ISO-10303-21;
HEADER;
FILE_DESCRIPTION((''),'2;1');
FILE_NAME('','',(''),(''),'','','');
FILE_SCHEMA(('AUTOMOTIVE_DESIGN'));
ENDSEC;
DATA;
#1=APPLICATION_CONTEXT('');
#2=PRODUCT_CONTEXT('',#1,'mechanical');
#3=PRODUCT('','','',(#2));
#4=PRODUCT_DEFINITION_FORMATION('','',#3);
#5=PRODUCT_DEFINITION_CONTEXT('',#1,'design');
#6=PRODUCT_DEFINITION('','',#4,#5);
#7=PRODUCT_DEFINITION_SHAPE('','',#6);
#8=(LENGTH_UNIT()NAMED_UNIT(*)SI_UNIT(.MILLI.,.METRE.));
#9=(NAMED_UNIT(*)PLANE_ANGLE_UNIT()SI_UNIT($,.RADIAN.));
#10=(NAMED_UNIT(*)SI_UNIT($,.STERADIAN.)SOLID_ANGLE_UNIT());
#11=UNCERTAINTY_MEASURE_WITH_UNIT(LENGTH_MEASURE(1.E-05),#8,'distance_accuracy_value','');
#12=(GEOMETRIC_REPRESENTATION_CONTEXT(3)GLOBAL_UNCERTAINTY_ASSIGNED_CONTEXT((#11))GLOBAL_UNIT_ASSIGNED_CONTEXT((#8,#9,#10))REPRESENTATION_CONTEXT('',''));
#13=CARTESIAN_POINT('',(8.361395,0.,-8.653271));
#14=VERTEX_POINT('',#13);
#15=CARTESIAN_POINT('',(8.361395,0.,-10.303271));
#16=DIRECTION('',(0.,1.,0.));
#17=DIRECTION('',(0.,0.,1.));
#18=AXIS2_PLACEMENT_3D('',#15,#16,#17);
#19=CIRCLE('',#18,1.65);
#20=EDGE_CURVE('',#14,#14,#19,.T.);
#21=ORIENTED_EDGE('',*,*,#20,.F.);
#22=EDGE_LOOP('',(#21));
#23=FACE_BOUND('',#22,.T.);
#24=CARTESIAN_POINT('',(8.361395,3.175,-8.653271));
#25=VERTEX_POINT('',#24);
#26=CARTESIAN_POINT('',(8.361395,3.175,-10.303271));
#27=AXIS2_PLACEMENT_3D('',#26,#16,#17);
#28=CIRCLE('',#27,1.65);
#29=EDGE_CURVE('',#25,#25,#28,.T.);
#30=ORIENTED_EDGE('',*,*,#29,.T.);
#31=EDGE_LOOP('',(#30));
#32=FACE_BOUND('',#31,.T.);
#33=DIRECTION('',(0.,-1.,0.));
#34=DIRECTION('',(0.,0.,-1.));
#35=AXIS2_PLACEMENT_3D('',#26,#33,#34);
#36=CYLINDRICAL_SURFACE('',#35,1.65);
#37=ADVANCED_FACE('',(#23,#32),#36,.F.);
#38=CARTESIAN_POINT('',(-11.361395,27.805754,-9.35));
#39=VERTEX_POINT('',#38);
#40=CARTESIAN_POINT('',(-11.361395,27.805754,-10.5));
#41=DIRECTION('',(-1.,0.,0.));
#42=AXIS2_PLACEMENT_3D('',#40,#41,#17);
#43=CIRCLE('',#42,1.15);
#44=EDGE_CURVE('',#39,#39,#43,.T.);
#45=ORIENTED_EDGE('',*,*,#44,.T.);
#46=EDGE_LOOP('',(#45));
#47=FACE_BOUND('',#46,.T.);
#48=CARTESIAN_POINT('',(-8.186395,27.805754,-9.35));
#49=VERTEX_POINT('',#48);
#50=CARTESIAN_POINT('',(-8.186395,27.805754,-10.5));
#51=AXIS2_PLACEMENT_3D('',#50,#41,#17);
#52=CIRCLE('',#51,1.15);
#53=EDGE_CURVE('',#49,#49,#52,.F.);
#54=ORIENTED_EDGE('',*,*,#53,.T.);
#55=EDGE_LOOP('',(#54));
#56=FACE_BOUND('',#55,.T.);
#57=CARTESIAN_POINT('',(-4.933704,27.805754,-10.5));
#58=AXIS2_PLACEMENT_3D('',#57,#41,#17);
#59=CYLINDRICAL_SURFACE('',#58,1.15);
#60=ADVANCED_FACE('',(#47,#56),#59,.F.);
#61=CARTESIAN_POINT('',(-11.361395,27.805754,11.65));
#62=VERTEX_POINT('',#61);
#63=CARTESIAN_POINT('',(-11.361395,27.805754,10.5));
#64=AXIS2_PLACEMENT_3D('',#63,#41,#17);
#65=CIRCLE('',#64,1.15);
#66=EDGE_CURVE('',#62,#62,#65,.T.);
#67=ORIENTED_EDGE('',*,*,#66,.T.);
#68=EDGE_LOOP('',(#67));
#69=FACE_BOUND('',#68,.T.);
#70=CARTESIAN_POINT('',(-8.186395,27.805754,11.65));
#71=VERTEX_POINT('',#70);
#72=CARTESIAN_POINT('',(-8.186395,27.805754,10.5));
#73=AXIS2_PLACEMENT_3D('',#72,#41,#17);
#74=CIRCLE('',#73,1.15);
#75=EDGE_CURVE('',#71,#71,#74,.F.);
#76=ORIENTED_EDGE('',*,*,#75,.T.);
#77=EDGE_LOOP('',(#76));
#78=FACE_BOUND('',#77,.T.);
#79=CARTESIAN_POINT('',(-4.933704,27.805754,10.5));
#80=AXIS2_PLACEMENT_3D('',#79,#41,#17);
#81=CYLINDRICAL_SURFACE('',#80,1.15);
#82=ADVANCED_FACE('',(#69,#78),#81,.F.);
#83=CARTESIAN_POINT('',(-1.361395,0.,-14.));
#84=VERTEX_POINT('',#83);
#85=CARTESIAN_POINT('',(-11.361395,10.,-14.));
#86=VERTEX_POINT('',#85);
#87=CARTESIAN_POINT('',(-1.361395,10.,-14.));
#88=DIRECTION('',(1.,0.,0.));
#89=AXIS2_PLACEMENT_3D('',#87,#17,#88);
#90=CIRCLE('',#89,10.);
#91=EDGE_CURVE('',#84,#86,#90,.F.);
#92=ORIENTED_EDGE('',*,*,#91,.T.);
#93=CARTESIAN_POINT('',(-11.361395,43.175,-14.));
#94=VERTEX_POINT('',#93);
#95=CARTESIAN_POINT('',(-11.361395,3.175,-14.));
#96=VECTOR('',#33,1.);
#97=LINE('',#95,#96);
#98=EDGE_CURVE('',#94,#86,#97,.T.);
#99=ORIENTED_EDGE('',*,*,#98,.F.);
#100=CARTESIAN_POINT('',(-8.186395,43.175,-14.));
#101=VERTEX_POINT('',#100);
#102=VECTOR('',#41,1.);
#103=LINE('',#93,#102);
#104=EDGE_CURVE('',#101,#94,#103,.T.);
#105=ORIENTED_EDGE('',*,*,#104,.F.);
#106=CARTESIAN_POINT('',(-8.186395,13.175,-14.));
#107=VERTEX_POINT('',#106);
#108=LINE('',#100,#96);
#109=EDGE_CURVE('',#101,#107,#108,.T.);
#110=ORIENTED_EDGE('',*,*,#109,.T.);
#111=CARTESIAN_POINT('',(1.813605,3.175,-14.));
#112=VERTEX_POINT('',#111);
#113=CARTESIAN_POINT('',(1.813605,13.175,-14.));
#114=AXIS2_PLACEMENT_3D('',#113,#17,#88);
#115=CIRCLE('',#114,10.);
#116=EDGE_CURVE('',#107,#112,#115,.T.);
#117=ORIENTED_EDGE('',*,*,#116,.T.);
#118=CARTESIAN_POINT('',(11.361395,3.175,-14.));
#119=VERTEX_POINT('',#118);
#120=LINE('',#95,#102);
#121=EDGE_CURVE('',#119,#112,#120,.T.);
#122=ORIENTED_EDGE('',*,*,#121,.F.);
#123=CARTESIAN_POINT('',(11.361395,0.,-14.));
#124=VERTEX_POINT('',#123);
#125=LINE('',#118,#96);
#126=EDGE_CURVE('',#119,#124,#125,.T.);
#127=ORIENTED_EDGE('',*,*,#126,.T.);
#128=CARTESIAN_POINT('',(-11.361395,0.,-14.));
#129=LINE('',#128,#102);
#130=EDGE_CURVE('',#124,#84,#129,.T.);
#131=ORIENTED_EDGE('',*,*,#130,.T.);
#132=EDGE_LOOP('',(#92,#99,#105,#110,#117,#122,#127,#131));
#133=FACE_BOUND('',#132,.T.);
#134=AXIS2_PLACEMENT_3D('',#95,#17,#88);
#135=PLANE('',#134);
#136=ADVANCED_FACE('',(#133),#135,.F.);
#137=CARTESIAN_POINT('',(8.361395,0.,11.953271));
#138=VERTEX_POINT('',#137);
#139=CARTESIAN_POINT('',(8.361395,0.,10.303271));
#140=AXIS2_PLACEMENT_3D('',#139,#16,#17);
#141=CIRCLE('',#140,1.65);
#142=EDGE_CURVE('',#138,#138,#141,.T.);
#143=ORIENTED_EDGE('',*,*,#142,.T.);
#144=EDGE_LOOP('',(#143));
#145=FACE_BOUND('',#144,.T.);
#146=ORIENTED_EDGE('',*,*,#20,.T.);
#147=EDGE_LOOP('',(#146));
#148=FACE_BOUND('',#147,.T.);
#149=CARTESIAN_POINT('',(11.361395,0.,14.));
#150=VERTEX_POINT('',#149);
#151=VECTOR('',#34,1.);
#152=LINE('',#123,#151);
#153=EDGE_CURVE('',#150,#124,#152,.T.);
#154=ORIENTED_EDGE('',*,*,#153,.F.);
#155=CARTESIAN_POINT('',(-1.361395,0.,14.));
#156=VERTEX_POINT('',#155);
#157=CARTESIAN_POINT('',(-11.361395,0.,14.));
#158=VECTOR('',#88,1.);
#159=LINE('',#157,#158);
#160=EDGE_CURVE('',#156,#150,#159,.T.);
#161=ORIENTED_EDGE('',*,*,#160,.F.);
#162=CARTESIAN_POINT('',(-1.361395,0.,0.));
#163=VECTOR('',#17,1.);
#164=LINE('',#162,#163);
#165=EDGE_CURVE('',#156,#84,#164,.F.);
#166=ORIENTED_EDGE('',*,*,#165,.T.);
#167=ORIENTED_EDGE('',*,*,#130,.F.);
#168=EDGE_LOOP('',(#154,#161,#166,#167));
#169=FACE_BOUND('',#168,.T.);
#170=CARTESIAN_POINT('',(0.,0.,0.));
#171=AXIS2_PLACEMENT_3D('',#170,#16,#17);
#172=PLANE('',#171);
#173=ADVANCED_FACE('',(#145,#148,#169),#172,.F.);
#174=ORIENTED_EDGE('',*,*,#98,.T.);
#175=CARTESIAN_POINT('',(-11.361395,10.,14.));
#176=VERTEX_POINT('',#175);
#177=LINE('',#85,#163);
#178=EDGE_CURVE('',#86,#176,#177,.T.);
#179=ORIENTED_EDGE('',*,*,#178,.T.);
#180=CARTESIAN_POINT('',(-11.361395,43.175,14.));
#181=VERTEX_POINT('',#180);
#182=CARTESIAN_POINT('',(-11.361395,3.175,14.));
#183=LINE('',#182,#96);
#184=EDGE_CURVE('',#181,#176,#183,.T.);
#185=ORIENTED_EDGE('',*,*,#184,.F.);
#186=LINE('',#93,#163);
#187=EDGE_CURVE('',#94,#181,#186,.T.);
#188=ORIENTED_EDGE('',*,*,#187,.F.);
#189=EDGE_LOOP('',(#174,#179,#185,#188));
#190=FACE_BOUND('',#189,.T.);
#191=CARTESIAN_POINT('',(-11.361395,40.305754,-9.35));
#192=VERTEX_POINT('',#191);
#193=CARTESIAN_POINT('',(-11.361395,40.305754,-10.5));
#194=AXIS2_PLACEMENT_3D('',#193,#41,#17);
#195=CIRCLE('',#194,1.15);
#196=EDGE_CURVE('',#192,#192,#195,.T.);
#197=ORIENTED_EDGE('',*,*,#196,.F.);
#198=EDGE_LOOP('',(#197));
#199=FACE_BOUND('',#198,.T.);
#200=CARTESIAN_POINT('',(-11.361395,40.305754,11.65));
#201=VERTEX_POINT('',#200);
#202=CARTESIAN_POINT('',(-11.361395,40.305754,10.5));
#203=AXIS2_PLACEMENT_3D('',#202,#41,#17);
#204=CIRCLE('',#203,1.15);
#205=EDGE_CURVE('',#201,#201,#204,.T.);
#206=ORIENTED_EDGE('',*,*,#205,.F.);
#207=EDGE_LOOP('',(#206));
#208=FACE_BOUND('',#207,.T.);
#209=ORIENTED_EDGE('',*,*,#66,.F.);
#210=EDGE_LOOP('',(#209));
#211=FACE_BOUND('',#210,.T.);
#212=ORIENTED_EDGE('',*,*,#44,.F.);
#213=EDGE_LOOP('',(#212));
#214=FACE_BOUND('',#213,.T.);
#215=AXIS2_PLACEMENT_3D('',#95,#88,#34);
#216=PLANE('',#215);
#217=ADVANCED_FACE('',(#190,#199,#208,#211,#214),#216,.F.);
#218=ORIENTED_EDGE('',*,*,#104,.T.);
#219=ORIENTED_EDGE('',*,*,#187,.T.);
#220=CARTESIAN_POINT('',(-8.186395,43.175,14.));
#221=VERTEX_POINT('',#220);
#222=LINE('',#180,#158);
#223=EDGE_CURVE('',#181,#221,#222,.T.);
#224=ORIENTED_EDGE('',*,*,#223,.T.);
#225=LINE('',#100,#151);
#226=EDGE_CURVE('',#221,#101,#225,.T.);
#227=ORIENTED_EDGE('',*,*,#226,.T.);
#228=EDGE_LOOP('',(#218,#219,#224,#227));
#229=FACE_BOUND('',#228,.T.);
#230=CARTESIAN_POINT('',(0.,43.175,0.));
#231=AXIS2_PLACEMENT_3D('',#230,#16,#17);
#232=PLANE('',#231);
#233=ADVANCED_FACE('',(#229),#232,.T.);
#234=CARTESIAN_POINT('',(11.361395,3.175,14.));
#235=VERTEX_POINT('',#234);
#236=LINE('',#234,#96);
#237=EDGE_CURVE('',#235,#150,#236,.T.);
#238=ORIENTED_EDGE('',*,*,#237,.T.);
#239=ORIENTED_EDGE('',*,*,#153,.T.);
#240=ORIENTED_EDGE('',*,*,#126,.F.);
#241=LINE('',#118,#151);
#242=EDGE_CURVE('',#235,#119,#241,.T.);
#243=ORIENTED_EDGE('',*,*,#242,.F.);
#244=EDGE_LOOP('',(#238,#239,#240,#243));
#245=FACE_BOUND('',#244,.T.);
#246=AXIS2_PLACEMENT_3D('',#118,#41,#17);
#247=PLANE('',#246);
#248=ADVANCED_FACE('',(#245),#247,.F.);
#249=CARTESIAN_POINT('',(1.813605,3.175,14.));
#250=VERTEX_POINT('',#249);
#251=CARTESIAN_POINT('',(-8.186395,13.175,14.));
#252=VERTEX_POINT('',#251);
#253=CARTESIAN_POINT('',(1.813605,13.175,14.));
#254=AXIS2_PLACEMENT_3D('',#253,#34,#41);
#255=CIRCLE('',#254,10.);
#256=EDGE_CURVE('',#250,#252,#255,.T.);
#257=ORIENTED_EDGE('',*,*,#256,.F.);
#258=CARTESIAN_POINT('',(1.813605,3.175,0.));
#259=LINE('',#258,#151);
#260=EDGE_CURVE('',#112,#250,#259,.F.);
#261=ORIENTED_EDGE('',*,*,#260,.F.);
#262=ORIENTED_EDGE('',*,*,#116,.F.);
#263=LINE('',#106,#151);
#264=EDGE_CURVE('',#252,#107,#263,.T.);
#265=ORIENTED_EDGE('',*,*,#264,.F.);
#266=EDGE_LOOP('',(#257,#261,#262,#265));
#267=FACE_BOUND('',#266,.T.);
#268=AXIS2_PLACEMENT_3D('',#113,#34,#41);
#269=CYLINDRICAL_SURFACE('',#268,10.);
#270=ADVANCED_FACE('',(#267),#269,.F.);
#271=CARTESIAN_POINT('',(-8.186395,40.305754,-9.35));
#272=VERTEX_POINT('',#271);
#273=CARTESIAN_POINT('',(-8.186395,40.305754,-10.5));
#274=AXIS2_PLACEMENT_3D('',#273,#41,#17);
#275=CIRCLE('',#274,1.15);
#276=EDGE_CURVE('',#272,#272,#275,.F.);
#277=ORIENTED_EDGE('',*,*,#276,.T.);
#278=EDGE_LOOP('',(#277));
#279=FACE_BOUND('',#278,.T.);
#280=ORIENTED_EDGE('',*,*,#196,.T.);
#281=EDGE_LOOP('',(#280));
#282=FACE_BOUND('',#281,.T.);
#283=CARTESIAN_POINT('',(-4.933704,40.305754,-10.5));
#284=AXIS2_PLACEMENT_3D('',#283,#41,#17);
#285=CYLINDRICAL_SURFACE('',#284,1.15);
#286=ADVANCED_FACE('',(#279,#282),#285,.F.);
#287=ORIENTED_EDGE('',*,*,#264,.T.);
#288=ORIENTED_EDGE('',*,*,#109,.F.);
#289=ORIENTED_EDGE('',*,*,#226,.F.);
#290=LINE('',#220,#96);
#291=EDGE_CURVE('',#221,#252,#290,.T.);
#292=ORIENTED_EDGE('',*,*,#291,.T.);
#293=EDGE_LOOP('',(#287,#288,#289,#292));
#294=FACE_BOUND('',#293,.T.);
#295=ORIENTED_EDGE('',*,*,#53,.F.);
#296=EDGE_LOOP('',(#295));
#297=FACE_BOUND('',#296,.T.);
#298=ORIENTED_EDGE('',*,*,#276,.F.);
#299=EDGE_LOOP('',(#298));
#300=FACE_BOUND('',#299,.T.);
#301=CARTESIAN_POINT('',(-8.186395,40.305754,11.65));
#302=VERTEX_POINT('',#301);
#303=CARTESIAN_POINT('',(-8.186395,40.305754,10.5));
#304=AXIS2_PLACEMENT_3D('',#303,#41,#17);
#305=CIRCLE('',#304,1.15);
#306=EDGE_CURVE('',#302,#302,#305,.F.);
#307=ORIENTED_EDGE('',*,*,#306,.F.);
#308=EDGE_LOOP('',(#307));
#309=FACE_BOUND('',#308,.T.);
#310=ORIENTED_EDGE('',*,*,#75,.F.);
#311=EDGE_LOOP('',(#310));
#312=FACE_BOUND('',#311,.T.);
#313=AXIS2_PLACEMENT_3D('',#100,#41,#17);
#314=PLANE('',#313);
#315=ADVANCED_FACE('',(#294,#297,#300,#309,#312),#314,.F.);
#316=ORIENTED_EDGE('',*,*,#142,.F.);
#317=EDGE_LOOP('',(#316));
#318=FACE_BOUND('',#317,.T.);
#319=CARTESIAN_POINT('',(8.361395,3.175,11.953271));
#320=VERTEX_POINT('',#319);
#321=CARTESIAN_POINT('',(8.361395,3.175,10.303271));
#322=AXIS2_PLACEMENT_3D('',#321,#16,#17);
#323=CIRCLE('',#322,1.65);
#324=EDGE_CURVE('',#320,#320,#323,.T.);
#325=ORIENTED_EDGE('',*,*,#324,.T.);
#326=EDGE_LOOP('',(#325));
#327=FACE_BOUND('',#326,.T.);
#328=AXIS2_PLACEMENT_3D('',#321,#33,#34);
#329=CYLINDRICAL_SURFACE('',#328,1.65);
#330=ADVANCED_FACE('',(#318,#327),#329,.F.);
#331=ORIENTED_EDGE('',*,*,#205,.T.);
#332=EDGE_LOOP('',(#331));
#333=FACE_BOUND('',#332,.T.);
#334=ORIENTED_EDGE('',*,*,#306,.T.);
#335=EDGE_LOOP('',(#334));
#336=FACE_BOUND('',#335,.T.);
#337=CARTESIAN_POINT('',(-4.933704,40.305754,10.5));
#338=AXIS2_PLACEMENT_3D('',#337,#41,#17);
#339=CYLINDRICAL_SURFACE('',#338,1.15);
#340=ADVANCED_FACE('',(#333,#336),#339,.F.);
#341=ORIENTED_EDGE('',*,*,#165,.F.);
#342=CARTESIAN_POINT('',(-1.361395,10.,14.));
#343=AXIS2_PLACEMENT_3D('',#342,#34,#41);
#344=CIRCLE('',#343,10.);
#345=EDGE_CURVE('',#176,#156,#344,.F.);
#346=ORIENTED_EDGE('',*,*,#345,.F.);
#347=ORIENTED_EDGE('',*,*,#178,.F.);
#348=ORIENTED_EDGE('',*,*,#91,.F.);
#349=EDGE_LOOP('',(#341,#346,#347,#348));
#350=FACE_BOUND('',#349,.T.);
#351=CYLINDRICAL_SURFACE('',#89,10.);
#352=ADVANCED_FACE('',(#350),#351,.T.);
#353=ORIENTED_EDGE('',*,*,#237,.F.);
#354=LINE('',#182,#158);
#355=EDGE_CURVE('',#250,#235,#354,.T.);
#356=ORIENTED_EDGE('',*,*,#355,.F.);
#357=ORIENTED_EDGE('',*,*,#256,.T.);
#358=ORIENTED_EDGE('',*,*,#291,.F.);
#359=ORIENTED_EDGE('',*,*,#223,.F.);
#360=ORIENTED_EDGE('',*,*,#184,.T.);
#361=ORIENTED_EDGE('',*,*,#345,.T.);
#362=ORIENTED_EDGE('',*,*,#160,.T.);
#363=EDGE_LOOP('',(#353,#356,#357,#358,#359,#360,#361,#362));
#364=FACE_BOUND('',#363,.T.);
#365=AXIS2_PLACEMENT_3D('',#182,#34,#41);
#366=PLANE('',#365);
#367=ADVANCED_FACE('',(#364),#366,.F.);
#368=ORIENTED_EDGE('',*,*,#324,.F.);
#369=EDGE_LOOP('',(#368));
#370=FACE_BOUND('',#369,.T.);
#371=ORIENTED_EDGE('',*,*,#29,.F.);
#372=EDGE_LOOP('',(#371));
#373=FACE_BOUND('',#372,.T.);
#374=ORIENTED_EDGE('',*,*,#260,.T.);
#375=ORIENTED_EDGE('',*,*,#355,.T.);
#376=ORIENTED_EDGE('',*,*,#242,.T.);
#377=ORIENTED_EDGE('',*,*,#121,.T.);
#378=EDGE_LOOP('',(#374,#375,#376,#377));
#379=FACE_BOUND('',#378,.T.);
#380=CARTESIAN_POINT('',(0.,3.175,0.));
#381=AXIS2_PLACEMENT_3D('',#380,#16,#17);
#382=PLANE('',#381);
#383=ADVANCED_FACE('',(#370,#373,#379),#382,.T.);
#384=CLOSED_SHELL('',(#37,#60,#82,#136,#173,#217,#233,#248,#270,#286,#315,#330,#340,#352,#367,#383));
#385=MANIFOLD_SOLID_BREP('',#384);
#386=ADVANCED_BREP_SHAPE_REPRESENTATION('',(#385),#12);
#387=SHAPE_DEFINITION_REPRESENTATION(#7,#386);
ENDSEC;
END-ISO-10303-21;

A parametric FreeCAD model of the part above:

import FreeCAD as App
import Part
import Sketcher
from FreeCAD import Vector
Q = App.Units.Quantity


def edges_at(feature, points):
    """Names of the edges that pass closest to the given points."""
    edges = feature.Shape.Edges
    near = lambda p: min(range(len(edges)), key=lambda i: edges[i].distToShape(Part.Vertex(*p))[0])
    return sorted({f"Edge{near(p) + 1}" for p in points})

doc = App.newDocument("Part")
params = doc.addObject("Spreadsheet::Sheet", "Params")
for row, (alias, value) in enumerate([
    ("sketch1_diameter", "3.3 mm"),
    ("sketch1_height", "28 mm"),
    ("pad1_length", "3.175 mm"),
    ("sketch2_height", "28 mm"),
    ("pad2_length", "40 mm"),
    ("fillet_radius", "10 mm"),
    ("sketch3_diameter", "2.3 mm"),
    ("pocket1_length", "3.175 mm"),
], start=1):
    params.set(f"A{row}", alias)
    params.set(f"B{row}", "=" + value)
    params.setAlias(f"B{row}", alias)

body = doc.addObject("PartDesign::Body", "Body")

# Sketch on XZ plane
sketch1 = body.newObject("Sketcher::SketchObject", "Sketch")
sketch1.AttachmentSupport = (doc.getObject("XZ_Plane"), [""])
sketch1.MapMode = "FlatFace"
sketch1.addGeometry([
    Part.LineSegment(Vector(-11.4, -14, 0), Vector(-11.4, 14, 0)),  # 0
    Part.LineSegment(Vector(-11.4, 14, 0), Vector(11.4, 14, 0)),  # 1
    Part.LineSegment(Vector(11.4, 14, 0), Vector(11.4, -14, 0)),  # 2
    Part.LineSegment(Vector(11.4, -14, 0), Vector(-11.4, -14, 0)),  # 3
    Part.Circle(Vector(8.4, 10.3, 0), Vector(0, 0, 1), 1.6),  # 4
    Part.Circle(Vector(8.4, -10.3, 0), Vector(0, 0, 1), 1.6),  # 5
], False)
sketch1.addConstraint([
    Sketcher.Constraint("Coincident", 0, 2, 1, 1),
    Sketcher.Constraint("Coincident", 1, 2, 2, 1),
    Sketcher.Constraint("Coincident", 2, 2, 3, 1),
    Sketcher.Constraint("Coincident", 3, 2, 0, 1),
    Sketcher.Constraint("Vertical", 0),
    Sketcher.Constraint("Horizontal", 1),
    Sketcher.Constraint("Vertical", 2),
    Sketcher.Constraint("Horizontal", 3),
    Sketcher.Constraint("Equal", 4, 5),
    Sketcher.Constraint("Symmetric", 0, 2, 2, 2, -1, 1),
    Sketcher.Constraint("Symmetric", 4, 3, 5, 3, -1),
    Sketcher.Constraint("Diameter", 4, Q("3.3 mm")),
    Sketcher.Constraint("DistanceY", 0, 1, 0, 2, Q("28 mm")),
    Sketcher.Constraint("DistanceX", 4, 3, 1, 2, Q("3 mm")),
    Sketcher.Constraint("DistanceX", 1, 1, 1, 2, Q("22.72279 mm")),
    Sketcher.Constraint("DistanceY", -1, 1, 4, 3, Q("10.303271 mm")),
])
sketch1.setExpression("Constraints[11]", "Params.sketch1_diameter")
sketch1.setExpression("Constraints[12]", "Params.sketch1_height")
pad1 = body.newObject("PartDesign::Pad", "Pad")
pad1.Profile = sketch1
pad1.setExpression("Length", "Params.pad1_length")
pad1.Reversed = True

# Sketch on XZ plane
sketch2 = body.newObject("Sketcher::SketchObject", "Sketch001")
sketch2.AttachmentSupport = (doc.getObject("XZ_Plane"), [""])
sketch2.MapMode = "FlatFace"
sketch2.AttachmentOffset = App.Placement(Vector(0, 0, -3.175), App.Rotation())
sketch2.addGeometry([
    Part.LineSegment(Vector(-11.4, -14, 0), Vector(-11.4, 14, 0)),
    Part.LineSegment(Vector(-11.4, 14, 0), Vector(-8.2, 14, 0)),
    Part.LineSegment(Vector(-8.2, 14, 0), Vector(-8.2, -14, 0)),
    Part.LineSegment(Vector(-8.2, -14, 0), Vector(-11.4, -14, 0)),
], False)
sketch2.addConstraint([
    Sketcher.Constraint("Coincident", 0, 2, 1, 1),
    Sketcher.Constraint("Coincident", 1, 2, 2, 1),
    Sketcher.Constraint("Coincident", 2, 2, 3, 1),
    Sketcher.Constraint("Coincident", 3, 2, 0, 1),
    Sketcher.Constraint("Vertical", 0),
    Sketcher.Constraint("Horizontal", 1),
    Sketcher.Constraint("Vertical", 2),
    Sketcher.Constraint("Horizontal", 3),
    Sketcher.Constraint("DistanceY", 0, 1, 0, 2, Q("28 mm")),
    Sketcher.Constraint("DistanceY", -1, 1, 0, 2, Q("14 mm")),
    Sketcher.Constraint("DistanceX", 1, 1, 1, 2, Q("3.175 mm")),
    Sketcher.Constraint("DistanceX", 0, 2, -1, 1, Q("11.361395 mm")),
])
sketch2.setExpression("Constraints[8]", "Params.sketch2_height")
pad2 = body.newObject("PartDesign::Pad", "Pad001")
pad2.Profile = sketch2
pad2.setExpression("Length", "Params.pad2_length")
pad2.Reversed = True
doc.recompute()

fillet = body.newObject("PartDesign::Fillet", "Fillet")
fillet.Base = (pad2, edges_at(pad2, [(-8.186, 3.175, 0), (-11.361, 0, 0)]))
fillet.setExpression("Radius", "Params.fillet_radius")

# Sketch on YZ plane
sketch3 = body.newObject("Sketcher::SketchObject", "Sketch002")
sketch3.AttachmentSupport = (doc.getObject("YZ_Plane"), [""])
sketch3.MapMode = "FlatFace"
sketch3.AttachmentOffset = App.Placement(Vector(0, 0, -11.361395), App.Rotation())
sketch3.addGeometry([
    Part.Circle(Vector(40.3, 10.5, 0), Vector(0, 0, 1), 1.1),
    Part.Circle(Vector(27.8, 10.5, 0), Vector(0, 0, 1), 1.1),
    Part.Circle(Vector(40.3, -10.5, 0), Vector(0, 0, 1), 1.1),
    Part.Circle(Vector(27.8, -10.5, 0), Vector(0, 0, 1), 1.1),
], False)
sketch3.addConstraint([
    Sketcher.Constraint("Equal", 0, 1),
    Sketcher.Constraint("Equal", 1, 2),
    Sketcher.Constraint("Equal", 2, 3),
    Sketcher.Constraint("Symmetric", 0, 3, 2, 3, -1),
    Sketcher.Constraint("Symmetric", 1, 3, 3, 3, -1),
    Sketcher.Constraint("Horizontal", 0, 3, 1, 3),
    Sketcher.Constraint("Diameter", 0, Q("2.3 mm")),
    Sketcher.Constraint("DistanceY", 2, 3, 0, 3, Q("21 mm")),
    Sketcher.Constraint("DistanceX", 1, 3, 0, 3, Q("12.5 mm")),
    Sketcher.Constraint("DistanceX", -1, 1, 0, 3, Q("40.305754 mm")),
])
sketch3.setExpression("Constraints[6]", "Params.sketch3_diameter")
pocket1 = body.newObject("PartDesign::Pocket", "Pocket")
pocket1.Profile = sketch3
pocket1.setExpression("Length", "Params.pocket1_length")
pocket1.Reversed = True

doc.recompute()
